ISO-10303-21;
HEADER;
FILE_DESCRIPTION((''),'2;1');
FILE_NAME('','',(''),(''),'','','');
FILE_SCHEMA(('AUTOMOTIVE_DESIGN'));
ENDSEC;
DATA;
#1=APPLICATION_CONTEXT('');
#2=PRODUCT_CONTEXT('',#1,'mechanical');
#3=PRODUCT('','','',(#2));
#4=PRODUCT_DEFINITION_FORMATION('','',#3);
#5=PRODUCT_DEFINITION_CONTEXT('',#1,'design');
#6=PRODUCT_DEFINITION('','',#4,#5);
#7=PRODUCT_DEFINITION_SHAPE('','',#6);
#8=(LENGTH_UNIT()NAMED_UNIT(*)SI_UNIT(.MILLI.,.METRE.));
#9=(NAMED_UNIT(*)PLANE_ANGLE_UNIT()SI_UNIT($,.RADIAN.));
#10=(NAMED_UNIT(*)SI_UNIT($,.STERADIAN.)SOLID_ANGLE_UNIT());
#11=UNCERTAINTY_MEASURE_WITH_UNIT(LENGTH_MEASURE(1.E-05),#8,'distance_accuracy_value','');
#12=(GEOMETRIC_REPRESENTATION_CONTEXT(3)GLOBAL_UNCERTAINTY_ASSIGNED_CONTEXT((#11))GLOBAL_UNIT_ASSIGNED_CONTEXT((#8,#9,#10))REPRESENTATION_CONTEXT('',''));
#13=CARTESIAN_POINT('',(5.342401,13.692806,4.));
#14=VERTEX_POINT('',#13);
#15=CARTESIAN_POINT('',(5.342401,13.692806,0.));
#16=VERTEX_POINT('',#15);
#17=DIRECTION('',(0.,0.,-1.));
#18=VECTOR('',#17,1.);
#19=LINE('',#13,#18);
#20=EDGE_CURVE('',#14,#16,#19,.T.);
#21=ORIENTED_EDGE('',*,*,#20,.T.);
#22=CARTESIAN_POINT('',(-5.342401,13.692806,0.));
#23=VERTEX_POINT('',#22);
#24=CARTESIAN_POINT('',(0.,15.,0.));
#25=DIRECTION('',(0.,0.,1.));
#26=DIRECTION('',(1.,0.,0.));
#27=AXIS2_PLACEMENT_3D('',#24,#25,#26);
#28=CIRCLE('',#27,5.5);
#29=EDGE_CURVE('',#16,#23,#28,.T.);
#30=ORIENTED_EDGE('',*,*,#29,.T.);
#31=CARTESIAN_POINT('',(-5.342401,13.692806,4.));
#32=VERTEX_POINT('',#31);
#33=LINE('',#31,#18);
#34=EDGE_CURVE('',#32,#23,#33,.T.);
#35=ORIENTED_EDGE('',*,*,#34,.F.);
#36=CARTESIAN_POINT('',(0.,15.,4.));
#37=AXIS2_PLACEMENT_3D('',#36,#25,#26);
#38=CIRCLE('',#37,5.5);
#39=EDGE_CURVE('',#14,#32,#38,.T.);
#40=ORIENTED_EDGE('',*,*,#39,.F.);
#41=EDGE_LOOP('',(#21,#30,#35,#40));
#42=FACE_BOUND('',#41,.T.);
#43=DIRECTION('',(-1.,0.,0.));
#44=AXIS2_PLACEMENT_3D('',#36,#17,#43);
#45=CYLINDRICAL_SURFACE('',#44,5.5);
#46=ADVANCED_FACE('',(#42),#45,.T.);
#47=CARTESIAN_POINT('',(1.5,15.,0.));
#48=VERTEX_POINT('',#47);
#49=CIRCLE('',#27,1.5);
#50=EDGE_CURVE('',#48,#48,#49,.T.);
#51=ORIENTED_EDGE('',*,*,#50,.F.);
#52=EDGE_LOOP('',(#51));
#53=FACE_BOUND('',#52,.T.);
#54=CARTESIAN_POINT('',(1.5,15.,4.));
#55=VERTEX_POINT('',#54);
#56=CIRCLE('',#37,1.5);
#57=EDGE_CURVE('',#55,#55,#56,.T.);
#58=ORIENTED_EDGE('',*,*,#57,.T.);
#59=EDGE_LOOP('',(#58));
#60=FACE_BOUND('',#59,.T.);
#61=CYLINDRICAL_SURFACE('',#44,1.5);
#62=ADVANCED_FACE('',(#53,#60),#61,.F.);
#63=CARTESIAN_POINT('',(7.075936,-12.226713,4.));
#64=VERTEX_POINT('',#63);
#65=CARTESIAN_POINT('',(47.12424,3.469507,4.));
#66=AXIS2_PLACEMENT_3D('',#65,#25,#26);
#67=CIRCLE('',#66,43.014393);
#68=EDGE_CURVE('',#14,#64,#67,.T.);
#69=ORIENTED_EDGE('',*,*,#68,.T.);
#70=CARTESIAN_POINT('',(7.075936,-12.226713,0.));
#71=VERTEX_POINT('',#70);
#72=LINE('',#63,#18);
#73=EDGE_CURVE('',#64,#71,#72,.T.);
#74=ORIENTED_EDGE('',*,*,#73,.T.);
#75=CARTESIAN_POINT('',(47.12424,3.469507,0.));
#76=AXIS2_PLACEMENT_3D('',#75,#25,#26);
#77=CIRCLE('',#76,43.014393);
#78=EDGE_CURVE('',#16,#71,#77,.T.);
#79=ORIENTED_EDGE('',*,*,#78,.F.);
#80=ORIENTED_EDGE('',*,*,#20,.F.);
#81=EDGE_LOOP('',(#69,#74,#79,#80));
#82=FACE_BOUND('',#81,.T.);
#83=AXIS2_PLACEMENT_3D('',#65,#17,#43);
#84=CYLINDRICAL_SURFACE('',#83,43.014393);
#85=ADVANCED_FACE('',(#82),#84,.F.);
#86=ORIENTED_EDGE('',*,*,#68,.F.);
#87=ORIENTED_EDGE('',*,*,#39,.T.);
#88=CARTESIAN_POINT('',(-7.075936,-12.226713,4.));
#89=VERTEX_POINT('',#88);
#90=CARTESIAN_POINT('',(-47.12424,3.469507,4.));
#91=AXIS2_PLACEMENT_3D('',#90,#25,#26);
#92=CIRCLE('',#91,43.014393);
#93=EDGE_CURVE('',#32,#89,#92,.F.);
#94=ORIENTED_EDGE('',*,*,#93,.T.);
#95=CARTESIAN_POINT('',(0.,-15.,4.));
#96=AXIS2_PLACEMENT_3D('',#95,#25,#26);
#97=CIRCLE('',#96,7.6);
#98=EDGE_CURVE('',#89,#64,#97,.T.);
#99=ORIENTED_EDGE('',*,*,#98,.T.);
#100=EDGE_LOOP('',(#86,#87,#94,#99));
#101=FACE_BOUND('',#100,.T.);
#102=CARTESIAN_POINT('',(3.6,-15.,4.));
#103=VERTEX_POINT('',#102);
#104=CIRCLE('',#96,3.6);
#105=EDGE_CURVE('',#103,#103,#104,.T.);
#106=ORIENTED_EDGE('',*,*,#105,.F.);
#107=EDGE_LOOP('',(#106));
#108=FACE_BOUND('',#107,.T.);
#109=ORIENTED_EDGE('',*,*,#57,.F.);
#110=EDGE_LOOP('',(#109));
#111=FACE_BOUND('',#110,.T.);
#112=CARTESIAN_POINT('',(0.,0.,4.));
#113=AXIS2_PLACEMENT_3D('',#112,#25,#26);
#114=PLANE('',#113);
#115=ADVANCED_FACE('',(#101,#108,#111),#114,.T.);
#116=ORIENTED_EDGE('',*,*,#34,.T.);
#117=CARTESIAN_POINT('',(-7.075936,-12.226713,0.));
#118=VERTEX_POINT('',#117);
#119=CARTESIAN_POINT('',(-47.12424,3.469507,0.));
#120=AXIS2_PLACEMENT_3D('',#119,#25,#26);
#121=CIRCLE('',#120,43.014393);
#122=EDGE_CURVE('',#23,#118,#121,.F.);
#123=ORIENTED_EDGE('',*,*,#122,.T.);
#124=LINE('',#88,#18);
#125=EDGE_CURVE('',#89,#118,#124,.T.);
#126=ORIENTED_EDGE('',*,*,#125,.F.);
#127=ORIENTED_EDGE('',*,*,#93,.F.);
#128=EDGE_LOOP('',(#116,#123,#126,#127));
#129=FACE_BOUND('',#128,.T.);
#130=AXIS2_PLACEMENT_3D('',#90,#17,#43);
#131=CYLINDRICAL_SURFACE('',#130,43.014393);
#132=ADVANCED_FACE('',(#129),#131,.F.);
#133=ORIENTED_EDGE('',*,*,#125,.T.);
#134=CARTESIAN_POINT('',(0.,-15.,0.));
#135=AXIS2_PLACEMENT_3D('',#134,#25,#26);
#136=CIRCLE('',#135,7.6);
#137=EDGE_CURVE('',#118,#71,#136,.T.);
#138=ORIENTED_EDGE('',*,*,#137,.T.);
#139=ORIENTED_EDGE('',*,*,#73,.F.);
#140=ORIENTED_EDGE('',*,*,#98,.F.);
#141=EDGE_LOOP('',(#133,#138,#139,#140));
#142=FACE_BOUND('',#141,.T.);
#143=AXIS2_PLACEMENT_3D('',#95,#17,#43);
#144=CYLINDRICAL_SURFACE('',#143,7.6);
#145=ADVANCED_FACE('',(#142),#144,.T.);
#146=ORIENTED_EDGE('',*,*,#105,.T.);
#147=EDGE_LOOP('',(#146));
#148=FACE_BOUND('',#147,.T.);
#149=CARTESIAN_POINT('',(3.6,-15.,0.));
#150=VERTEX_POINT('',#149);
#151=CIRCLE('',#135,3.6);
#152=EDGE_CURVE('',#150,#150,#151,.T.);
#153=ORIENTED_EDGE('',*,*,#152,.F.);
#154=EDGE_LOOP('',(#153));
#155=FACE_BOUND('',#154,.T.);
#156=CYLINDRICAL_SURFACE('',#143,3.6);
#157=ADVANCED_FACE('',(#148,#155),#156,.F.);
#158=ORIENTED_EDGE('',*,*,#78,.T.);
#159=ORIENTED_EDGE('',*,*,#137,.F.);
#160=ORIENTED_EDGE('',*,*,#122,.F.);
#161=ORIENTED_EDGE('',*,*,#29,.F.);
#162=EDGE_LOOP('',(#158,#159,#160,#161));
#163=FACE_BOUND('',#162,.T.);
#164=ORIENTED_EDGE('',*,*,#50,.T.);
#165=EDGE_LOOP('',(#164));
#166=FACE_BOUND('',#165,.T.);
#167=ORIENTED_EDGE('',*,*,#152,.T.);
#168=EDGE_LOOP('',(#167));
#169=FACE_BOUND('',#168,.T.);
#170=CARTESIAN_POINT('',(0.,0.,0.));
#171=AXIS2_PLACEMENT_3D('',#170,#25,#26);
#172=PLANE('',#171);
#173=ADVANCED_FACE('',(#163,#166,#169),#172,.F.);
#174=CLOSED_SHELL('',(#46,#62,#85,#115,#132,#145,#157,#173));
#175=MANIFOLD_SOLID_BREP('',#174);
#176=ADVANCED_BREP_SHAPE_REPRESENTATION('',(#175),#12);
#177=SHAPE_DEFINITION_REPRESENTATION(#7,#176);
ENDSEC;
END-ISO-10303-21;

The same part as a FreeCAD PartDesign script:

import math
import FreeCAD as App
import Part
import Sketcher
Q = App.Units.Quantity

doc = App.newDocument("Part")
body = doc.addObject("PartDesign::Body", "Body")

# Sketch on XY plane
sketch1 = body.newObject("Sketcher::SketchObject", "Sketch")
sketch1.AttachmentSupport = (doc.getObject("XY_Plane"), [""])
sketch1.MapMode = "FlatFace"
sketch1.addGeometry([
    Part.ArcOfCircle(Part.Circle(App.Vector(47.12424, 3.469507, 0), App.Vector(0, 0, 1), 43.014393), math.radians(166.250844), math.radians(201.401812)),  # 0
    Part.ArcOfCircle(Part.Circle(App.Vector(0, 15, 0), App.Vector(0, 0, 1), 5.5), math.radians(-13.749156), math.radians(193.749156)),  # 1
    Part.ArcOfCircle(Part.Circle(App.Vector(-47.12424, 3.469507, 0), App.Vector(0, 0, 1), 43.014393), math.radians(-21.401812), math.radians(13.749156)),  # 2
    Part.ArcOfCircle(Part.Circle(App.Vector(0, -15, 0), App.Vector(0, 0, 1), 7.6), math.radians(158.598188), math.radians(381.401812)),  # 3
    Part.Circle(App.Vector(0, -15, 0), App.Vector(0, 0, 1), 3.6),  # 4
    Part.Circle(App.Vector(0, 15, 0), App.Vector(0, 0, 1), 1.5),  # 5
], False)
sketch1.addConstraint([
    Sketcher.Constraint("Tangent", 0, 1, 1, 1),
    Sketcher.Constraint("Tangent", 1, 2, 2, 2),
    Sketcher.Constraint("Tangent", 2, 1, 3, 1),
    Sketcher.Constraint("Tangent", 3, 2, 0, 2),
    Sketcher.Constraint("Coincident", 4, 3, 3, 3),
    Sketcher.Constraint("Coincident", 5, 3, 1, 3),
    Sketcher.Constraint("Equal", 0, 2),
    Sketcher.Constraint("Symmetric", 1, 3, 3, 3, -1, 1),
    Sketcher.Constraint("PointOnObject", 1, 3, -2),
    Sketcher.Constraint("Diameter", 5, Q("3 mm")),
    Sketcher.Constraint("Diameter", 4, Q("7.2 mm")),
    Sketcher.Constraint("Radius", 1, Q("5.5 mm")),
    Sketcher.Constraint("Radius", 3, Q("7.6 mm")),
    Sketcher.Constraint("DistanceY", -1, 1, 1, 3, Q("15 mm")),
    Sketcher.Constraint("Radius", 0, Q("43.014393 mm")),
])
pad1 = body.newObject("PartDesign::Pad", "Pad")
pad1.Profile = sketch1
pad1.Length = 4

doc.recompute()
